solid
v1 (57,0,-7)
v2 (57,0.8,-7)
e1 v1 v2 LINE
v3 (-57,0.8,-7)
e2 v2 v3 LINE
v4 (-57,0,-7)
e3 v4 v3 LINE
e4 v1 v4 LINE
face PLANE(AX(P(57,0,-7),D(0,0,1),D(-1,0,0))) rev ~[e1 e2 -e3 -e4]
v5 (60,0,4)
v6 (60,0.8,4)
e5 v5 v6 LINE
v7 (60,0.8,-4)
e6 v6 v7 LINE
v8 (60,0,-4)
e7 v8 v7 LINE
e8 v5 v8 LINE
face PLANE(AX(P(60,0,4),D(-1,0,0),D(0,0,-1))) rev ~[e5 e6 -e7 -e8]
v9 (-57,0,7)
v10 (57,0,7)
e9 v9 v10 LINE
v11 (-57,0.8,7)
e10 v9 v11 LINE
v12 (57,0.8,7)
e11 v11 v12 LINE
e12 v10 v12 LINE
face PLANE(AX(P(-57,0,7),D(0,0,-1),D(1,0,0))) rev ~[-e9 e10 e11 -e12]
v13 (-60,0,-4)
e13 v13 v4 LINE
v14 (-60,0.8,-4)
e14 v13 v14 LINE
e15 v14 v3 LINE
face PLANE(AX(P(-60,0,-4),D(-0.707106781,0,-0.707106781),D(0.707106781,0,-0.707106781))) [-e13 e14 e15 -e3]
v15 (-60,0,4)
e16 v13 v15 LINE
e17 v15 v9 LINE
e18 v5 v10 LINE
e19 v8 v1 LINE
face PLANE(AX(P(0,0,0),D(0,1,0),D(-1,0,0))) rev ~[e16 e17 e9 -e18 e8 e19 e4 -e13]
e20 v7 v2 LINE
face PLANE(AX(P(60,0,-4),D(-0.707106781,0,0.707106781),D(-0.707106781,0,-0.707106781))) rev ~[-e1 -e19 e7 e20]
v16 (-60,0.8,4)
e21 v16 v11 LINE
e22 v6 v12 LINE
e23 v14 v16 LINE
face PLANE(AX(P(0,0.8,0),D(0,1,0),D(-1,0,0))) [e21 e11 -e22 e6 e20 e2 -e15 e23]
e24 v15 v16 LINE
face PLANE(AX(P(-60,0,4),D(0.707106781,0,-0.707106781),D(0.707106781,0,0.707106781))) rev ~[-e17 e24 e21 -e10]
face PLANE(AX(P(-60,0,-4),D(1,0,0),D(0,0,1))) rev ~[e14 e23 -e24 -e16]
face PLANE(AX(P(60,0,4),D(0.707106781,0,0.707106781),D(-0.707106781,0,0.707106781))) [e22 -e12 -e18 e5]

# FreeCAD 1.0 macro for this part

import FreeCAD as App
import Part
import Sketcher

V = App.Vector
Q = App.Units.Quantity

doc = App.newDocument("Part")
body = doc.addObject("PartDesign::Body", "Body")

sketch1 = doc.addObject("Sketcher::SketchObject", "Sketch")
body.addObject(sketch1)
sketch1.AttachmentSupport = (doc.XZ_Plane, [""])
sketch1.MapMode = "FlatFace"
sketch1.addGeometry([
    Part.LineSegment(V(-60, 4, 0), V(-57, 7, 0)),
    Part.LineSegment(V(-57, 7, 0), V(57, 7, 0)),
    Part.LineSegment(V(57, 7, 0), V(60, 4, 0)),
    Part.LineSegment(V(60, 4, 0), V(60, -4, 0)),
    Part.LineSegment(V(60, -4, 0), V(57, -7, 0)),
    Part.LineSegment(V(57, -7, 0), V(-57, -7, 0)),
    Part.LineSegment(V(-57, -7, 0), V(-60, -4, 0)),
    Part.LineSegment(V(-60, -4, 0), V(-60, 4, 0)),
], False)
sketch1.addConstraint([
    Sketcher.Constraint("Coincident", 0, 2, 1, 1),
    Sketcher.Constraint("Coincident", 1, 2, 2, 1),
    Sketcher.Constraint("Coincident", 2, 2, 3, 1),
    Sketcher.Constraint("Coincident", 3, 2, 4, 1),
    Sketcher.Constraint("Coincident", 4, 2, 5, 1),
    Sketcher.Constraint("Coincident", 5, 2, 6, 1),
    Sketcher.Constraint("Coincident", 6, 2, 7, 1),
    Sketcher.Constraint("Coincident", 7, 2, 0, 1),
    Sketcher.Constraint("Horizontal", 1),
    Sketcher.Constraint("Vertical", 3),
    Sketcher.Constraint("Horizontal", 5),
    Sketcher.Constraint("Vertical", 7),
    Sketcher.Constraint("Symmetric", 0, 2, 4, 2, -1, 1),
    Sketcher.Constraint("Symmetric", 2, 2, 6, 2, -1, 1),
    Sketcher.Constraint("Perpendicular", 0, 2),
    Sketcher.Constraint("Perpendicular", 2, 4),
    Sketcher.Constraint("Perpendicular", 4, 6),
    Sketcher.Constraint("Horizontal", 3, 2, 6, 2),
    Sketcher.Constraint("Vertical", 1, 2, 4, 2),
    Sketcher.Constraint("DistanceX", 1, 2, 2, 2, Q("3 mm")),
    Sketcher.Constraint("DistanceY", 4, 2, 1, 2, Q("14 mm")),
    Sketcher.Constraint("DistanceX", 6, 2, 3, 2, Q("120 mm")),
])
pad1 = doc.addObject("PartDesign::Pad", "Pad")
body.addObject(pad1)
pad1.Profile = sketch1
pad1.Length = 0.8
pad1.Reversed = True

doc.recompute()
